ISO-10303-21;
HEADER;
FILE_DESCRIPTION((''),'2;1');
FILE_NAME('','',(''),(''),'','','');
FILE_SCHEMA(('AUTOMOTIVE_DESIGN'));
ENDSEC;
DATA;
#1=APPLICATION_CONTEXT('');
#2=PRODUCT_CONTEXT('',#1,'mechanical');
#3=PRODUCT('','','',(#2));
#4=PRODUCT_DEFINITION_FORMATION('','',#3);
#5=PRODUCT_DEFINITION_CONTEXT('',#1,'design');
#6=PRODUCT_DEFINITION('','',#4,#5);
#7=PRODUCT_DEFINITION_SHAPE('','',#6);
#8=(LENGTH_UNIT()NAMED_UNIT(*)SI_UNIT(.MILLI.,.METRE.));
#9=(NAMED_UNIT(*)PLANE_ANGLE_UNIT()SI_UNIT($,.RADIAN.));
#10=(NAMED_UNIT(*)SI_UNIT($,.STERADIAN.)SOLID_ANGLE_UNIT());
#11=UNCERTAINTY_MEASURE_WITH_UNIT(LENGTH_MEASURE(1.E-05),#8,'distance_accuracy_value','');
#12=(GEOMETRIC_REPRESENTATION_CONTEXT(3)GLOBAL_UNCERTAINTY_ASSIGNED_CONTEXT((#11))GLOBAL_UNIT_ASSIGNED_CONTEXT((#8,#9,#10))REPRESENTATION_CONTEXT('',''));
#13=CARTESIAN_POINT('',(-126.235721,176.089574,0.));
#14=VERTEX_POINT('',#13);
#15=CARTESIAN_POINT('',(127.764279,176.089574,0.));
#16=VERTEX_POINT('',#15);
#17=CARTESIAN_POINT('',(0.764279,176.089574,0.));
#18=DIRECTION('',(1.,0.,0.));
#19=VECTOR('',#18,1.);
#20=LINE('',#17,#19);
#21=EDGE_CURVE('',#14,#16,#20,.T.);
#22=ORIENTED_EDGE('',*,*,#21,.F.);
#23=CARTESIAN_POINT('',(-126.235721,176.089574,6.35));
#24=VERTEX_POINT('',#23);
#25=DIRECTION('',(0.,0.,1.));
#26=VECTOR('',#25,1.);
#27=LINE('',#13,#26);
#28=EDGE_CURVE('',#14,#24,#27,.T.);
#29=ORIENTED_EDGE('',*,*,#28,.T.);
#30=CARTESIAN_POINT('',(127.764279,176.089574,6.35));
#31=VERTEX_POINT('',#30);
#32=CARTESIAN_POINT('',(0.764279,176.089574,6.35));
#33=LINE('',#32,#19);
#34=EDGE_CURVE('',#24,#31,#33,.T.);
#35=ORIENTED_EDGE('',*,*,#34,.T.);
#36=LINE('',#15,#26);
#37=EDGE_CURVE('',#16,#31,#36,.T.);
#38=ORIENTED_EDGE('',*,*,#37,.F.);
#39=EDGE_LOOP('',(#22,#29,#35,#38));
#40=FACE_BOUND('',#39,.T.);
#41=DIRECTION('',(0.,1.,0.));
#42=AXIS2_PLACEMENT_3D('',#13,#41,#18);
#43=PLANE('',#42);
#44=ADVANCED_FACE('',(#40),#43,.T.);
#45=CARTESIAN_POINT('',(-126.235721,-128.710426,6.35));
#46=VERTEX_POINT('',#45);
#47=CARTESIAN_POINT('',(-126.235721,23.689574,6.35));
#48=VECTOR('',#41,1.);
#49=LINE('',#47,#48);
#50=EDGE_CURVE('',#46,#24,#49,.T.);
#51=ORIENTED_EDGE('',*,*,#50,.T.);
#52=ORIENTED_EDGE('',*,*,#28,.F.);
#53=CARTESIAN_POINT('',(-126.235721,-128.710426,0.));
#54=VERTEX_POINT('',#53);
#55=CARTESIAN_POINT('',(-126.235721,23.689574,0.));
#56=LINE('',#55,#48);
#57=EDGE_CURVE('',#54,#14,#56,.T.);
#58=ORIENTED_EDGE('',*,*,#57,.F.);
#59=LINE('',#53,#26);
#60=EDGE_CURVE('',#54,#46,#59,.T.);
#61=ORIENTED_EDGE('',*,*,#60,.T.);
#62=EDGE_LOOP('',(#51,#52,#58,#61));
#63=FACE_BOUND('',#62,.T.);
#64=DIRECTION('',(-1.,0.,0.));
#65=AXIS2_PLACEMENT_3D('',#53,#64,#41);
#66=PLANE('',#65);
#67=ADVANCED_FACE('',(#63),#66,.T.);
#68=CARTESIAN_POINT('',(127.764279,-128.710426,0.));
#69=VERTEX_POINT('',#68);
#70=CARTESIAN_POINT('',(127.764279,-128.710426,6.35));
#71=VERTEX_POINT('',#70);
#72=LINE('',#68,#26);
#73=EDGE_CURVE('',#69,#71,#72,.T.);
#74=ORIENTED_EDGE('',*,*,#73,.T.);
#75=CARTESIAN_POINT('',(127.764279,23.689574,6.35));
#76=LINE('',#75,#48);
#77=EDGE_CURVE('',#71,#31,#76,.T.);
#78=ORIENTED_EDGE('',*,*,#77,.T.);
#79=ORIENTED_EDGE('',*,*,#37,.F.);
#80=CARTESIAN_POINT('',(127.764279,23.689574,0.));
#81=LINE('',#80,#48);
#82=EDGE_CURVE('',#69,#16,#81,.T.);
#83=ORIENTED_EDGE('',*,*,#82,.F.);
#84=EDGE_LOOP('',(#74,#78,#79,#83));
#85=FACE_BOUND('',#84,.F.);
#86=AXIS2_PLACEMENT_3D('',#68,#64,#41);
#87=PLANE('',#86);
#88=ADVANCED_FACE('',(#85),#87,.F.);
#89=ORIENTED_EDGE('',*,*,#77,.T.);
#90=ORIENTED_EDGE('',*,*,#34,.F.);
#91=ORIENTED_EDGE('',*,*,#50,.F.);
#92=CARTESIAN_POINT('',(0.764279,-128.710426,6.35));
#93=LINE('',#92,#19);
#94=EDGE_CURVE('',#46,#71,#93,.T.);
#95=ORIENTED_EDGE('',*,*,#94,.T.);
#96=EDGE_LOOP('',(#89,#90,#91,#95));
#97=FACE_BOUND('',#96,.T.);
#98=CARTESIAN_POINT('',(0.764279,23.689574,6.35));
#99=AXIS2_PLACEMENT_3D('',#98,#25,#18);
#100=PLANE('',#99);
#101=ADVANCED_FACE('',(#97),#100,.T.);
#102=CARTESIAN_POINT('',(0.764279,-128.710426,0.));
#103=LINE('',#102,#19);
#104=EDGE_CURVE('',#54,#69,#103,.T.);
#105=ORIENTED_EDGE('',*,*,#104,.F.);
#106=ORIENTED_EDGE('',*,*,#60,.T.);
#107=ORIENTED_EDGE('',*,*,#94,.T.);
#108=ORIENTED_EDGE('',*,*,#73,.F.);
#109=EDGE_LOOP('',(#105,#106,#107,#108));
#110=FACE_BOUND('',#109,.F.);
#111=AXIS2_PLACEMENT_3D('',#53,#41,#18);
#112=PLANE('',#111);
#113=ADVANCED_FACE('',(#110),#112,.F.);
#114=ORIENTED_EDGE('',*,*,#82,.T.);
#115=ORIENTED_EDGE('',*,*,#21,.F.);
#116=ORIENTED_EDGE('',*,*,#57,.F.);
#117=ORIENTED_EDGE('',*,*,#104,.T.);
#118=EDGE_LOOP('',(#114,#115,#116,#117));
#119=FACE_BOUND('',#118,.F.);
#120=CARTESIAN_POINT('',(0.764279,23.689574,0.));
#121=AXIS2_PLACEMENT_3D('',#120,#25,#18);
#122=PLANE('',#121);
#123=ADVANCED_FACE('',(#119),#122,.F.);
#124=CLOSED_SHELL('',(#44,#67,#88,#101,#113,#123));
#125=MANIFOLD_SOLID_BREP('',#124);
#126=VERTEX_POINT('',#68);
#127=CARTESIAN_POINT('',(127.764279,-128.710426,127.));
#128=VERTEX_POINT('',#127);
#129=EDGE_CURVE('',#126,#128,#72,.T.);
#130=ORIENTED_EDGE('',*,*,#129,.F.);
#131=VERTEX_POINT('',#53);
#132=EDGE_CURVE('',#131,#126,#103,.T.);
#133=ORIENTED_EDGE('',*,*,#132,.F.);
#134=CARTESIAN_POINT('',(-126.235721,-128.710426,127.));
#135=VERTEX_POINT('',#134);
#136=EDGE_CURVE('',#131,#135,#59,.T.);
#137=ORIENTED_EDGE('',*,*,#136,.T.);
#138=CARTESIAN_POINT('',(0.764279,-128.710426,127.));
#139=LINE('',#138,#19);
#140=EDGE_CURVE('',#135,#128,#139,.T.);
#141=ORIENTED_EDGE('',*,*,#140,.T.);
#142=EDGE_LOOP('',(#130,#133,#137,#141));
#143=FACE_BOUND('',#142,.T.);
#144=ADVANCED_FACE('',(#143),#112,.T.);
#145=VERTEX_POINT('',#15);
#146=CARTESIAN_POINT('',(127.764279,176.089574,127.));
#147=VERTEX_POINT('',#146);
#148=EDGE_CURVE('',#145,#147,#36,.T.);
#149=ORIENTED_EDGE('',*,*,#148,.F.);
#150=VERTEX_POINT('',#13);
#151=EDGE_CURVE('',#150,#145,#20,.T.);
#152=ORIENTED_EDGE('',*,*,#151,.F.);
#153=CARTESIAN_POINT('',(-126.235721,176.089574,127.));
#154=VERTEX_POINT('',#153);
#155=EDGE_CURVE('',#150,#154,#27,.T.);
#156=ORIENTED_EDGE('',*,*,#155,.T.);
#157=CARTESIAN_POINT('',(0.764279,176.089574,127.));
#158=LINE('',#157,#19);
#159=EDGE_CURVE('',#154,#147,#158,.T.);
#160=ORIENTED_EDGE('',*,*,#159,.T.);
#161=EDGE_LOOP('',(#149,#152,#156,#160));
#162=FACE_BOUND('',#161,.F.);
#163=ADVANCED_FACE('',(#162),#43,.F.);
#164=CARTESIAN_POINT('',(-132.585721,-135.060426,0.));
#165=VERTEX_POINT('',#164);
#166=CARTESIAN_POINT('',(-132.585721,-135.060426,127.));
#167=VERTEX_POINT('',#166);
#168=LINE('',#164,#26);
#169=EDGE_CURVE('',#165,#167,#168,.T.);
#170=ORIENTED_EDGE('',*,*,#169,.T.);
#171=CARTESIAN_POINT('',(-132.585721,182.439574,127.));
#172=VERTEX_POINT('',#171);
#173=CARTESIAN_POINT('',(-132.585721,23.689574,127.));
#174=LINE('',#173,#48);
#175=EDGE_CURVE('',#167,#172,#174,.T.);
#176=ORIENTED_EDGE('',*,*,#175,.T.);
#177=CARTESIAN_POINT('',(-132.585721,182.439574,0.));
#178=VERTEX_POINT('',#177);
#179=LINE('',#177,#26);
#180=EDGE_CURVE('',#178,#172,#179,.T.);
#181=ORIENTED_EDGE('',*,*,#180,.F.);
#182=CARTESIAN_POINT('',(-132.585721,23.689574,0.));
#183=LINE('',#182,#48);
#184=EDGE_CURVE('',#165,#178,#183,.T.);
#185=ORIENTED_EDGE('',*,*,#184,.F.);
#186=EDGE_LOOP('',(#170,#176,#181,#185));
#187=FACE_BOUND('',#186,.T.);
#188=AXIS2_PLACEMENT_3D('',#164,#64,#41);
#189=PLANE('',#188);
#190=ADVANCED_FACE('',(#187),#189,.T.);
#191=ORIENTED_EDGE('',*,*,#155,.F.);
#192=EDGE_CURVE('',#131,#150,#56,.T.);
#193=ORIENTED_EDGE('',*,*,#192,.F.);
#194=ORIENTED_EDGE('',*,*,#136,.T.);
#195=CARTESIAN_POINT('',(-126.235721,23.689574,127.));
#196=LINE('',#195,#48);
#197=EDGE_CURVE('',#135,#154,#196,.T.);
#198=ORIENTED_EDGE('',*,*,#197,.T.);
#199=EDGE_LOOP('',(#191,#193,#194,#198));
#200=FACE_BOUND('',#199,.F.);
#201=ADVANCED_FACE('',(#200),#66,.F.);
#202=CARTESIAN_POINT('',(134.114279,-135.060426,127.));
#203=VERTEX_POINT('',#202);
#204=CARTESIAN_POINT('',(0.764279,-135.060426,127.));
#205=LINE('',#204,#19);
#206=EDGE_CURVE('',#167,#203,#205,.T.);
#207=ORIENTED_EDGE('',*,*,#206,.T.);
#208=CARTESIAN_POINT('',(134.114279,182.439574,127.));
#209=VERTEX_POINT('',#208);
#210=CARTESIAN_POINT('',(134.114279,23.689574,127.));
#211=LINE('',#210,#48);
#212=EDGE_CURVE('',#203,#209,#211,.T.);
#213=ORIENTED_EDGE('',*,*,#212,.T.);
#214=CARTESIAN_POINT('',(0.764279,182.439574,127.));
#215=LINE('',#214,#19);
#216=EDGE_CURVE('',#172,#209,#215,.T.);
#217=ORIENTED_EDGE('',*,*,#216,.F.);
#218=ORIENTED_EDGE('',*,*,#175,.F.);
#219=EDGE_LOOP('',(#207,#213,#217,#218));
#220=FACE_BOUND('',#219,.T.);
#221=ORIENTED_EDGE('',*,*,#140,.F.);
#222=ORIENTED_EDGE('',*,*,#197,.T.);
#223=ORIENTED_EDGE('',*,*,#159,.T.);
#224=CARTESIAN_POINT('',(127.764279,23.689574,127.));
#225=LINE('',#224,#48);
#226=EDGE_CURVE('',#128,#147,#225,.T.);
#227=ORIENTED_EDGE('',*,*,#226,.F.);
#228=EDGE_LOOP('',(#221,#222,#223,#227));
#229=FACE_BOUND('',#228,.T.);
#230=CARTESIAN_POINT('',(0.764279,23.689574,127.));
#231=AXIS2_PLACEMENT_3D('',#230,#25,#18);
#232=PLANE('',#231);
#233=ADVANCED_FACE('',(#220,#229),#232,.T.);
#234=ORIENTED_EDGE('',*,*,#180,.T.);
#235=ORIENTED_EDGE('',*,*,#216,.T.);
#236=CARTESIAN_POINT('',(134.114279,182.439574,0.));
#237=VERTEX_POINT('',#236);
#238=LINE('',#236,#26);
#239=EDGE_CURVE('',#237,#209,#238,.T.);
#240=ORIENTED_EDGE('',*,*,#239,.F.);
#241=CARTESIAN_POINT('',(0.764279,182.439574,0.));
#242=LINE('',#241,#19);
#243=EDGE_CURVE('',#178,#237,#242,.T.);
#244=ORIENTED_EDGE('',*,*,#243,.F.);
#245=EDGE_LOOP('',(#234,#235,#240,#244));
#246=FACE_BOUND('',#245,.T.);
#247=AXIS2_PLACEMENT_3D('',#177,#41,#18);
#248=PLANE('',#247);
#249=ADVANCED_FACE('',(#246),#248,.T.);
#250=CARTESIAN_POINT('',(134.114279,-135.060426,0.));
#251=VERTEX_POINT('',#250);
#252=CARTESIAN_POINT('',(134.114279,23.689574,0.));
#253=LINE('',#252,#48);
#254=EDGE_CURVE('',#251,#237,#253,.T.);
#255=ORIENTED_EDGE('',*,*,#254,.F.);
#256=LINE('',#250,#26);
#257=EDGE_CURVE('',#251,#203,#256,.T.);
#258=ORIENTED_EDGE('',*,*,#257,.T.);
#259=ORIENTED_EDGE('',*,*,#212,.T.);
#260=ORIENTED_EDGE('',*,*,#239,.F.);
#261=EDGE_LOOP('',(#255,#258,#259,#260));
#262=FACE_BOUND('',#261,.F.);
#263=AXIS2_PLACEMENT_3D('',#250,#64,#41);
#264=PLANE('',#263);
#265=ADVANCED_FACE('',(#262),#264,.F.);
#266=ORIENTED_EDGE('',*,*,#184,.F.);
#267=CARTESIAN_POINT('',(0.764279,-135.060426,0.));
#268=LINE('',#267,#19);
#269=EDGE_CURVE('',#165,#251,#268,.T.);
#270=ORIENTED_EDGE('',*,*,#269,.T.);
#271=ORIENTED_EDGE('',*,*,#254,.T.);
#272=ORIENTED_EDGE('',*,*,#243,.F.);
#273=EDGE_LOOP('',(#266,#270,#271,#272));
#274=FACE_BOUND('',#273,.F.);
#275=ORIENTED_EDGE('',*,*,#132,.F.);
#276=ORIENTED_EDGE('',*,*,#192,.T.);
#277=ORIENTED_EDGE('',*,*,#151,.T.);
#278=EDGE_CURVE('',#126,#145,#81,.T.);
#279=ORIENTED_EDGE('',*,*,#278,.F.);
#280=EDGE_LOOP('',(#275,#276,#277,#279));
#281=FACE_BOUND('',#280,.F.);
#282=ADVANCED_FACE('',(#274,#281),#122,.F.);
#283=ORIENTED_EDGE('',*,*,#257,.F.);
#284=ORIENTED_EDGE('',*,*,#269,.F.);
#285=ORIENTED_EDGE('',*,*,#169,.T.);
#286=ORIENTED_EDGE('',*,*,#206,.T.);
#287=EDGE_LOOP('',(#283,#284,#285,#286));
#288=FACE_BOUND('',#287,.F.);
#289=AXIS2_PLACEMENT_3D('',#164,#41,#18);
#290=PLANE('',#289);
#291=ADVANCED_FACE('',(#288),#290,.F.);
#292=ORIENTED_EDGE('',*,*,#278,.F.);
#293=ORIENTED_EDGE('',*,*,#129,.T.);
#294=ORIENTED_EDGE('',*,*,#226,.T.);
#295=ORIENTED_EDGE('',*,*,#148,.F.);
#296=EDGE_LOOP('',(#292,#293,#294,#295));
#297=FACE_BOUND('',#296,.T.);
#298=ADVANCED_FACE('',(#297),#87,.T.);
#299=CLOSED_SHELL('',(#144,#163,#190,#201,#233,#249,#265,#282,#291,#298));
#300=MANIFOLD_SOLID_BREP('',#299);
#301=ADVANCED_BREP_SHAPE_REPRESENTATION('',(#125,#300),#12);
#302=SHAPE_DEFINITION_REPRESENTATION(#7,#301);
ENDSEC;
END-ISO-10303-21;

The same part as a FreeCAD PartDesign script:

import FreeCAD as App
import Part
import Sketcher
Q = App.Units.Quantity


def add_polygon(sketch, points):
    """Adds a closed chain of lines whose ends are joined by coincident constraints."""
    first, n = sketch.GeometryCount, len(points)
    for a, b in zip(points, points[1:] + points[:1]):
        sketch.addGeometry(Part.LineSegment(App.Vector(*a, 0), App.Vector(*b, 0)), False)
    for i in range(n):
        sketch.addConstraint(Sketcher.Constraint("Coincident", first + i, 2, first + (i + 1) % n, 1))

doc = App.newDocument("Part")
body = doc.addObject("PartDesign::Body", "Body")

sketch1 = doc.addObject("Sketcher::SketchObject", "Sketch")
body.addObject(sketch1)
sketch1.AttachmentSupport = (doc.XY_Plane, [""])
sketch1.MapMode = "FlatFace"
add_polygon(sketch1, [(-126, 176), (-126, -129), (128, -129), (128, 176)])
sketch1.addConstraint(Sketcher.Constraint("Vertical", 0))
sketch1.addConstraint(Sketcher.Constraint("Horizontal", 1))
sketch1.addConstraint(Sketcher.Constraint("Vertical", 2))
sketch1.addConstraint(Sketcher.Constraint("Horizontal", 3))
sketch1.addConstraint(Sketcher.Constraint("DistanceX", 1, 1, 1, 2, Q("10 in")))
sketch1.addConstraint(Sketcher.Constraint("DistanceY", 0, 2, 0, 1, Q("12 in")))
sketch1.addConstraint(Sketcher.Constraint("DistanceX", 0, 2, -1, 1, 126.235721))
sketch1.addConstraint(Sketcher.Constraint("DistanceY", 0, 2, -1, 1, 128.710426))
pad1 = doc.addObject("PartDesign::Pad", "Pad")
body.addObject(pad1)
pad1.Profile = sketch1
pad1.Length = Q("0.25 in")
body2 = doc.addObject("PartDesign::Body", "Body001")

sketch2 = doc.addObject("Sketcher::SketchObject", "Sketch001")
body2.addObject(sketch2)
sketch2.AttachmentSupport = (doc.getObject("XY_Plane001"), [""])
sketch2.MapMode = "FlatFace"
add_polygon(sketch2, [(-133, 182), (-133, -135), (134, -135), (134, 182)])
add_polygon(sketch2, [(128, -129), (-126, -129), (-126, 176), (128, 176)])
sketch2.addConstraint(Sketcher.Constraint("Vertical", 0))
sketch2.addConstraint(Sketcher.Constraint("Horizontal", 1))
sketch2.addConstraint(Sketcher.Constraint("Vertical", 2))
sketch2.addConstraint(Sketcher.Constraint("Horizontal", 3))
sketch2.addConstraint(Sketcher.Constraint("Horizontal", 4))
sketch2.addConstraint(Sketcher.Constraint("Vertical", 5))
sketch2.addConstraint(Sketcher.Constraint("Horizontal", 6))
sketch2.addConstraint(Sketcher.Constraint("Vertical", 7))
sketch2.addConstraint(Sketcher.Constraint("DistanceX", 4, 2, 4, 1, Q("10 in")))
sketch2.addConstraint(Sketcher.Constraint("DistanceY", 5, 1, 5, 2, Q("12 in")))
sketch2.addConstraint(Sketcher.Constraint("DistanceX", 1, 1, 1, 2, Q("10.5 in")))
sketch2.addConstraint(Sketcher.Constraint("DistanceY", 0, 2, 0, 1, Q("12.5 in")))
sketch2.addConstraint(Sketcher.Constraint("DistanceX", 0, 2, 4, 2, Q("0.25 in")))
sketch2.addConstraint(Sketcher.Constraint("DistanceY", 0, 2, 4, 2, Q("0.25 in")))
sketch2.addConstraint(Sketcher.Constraint("DistanceX", 0, 2, -1, 1, 132.585721))
sketch2.addConstraint(Sketcher.Constraint("DistanceY", 0, 2, -1, 1, 135.060426))
pad2 = doc.addObject("PartDesign::Pad", "Pad001")
body2.addObject(pad2)
pad2.Profile = sketch2
pad2.Length = Q("5 in")

doc.recompute()
